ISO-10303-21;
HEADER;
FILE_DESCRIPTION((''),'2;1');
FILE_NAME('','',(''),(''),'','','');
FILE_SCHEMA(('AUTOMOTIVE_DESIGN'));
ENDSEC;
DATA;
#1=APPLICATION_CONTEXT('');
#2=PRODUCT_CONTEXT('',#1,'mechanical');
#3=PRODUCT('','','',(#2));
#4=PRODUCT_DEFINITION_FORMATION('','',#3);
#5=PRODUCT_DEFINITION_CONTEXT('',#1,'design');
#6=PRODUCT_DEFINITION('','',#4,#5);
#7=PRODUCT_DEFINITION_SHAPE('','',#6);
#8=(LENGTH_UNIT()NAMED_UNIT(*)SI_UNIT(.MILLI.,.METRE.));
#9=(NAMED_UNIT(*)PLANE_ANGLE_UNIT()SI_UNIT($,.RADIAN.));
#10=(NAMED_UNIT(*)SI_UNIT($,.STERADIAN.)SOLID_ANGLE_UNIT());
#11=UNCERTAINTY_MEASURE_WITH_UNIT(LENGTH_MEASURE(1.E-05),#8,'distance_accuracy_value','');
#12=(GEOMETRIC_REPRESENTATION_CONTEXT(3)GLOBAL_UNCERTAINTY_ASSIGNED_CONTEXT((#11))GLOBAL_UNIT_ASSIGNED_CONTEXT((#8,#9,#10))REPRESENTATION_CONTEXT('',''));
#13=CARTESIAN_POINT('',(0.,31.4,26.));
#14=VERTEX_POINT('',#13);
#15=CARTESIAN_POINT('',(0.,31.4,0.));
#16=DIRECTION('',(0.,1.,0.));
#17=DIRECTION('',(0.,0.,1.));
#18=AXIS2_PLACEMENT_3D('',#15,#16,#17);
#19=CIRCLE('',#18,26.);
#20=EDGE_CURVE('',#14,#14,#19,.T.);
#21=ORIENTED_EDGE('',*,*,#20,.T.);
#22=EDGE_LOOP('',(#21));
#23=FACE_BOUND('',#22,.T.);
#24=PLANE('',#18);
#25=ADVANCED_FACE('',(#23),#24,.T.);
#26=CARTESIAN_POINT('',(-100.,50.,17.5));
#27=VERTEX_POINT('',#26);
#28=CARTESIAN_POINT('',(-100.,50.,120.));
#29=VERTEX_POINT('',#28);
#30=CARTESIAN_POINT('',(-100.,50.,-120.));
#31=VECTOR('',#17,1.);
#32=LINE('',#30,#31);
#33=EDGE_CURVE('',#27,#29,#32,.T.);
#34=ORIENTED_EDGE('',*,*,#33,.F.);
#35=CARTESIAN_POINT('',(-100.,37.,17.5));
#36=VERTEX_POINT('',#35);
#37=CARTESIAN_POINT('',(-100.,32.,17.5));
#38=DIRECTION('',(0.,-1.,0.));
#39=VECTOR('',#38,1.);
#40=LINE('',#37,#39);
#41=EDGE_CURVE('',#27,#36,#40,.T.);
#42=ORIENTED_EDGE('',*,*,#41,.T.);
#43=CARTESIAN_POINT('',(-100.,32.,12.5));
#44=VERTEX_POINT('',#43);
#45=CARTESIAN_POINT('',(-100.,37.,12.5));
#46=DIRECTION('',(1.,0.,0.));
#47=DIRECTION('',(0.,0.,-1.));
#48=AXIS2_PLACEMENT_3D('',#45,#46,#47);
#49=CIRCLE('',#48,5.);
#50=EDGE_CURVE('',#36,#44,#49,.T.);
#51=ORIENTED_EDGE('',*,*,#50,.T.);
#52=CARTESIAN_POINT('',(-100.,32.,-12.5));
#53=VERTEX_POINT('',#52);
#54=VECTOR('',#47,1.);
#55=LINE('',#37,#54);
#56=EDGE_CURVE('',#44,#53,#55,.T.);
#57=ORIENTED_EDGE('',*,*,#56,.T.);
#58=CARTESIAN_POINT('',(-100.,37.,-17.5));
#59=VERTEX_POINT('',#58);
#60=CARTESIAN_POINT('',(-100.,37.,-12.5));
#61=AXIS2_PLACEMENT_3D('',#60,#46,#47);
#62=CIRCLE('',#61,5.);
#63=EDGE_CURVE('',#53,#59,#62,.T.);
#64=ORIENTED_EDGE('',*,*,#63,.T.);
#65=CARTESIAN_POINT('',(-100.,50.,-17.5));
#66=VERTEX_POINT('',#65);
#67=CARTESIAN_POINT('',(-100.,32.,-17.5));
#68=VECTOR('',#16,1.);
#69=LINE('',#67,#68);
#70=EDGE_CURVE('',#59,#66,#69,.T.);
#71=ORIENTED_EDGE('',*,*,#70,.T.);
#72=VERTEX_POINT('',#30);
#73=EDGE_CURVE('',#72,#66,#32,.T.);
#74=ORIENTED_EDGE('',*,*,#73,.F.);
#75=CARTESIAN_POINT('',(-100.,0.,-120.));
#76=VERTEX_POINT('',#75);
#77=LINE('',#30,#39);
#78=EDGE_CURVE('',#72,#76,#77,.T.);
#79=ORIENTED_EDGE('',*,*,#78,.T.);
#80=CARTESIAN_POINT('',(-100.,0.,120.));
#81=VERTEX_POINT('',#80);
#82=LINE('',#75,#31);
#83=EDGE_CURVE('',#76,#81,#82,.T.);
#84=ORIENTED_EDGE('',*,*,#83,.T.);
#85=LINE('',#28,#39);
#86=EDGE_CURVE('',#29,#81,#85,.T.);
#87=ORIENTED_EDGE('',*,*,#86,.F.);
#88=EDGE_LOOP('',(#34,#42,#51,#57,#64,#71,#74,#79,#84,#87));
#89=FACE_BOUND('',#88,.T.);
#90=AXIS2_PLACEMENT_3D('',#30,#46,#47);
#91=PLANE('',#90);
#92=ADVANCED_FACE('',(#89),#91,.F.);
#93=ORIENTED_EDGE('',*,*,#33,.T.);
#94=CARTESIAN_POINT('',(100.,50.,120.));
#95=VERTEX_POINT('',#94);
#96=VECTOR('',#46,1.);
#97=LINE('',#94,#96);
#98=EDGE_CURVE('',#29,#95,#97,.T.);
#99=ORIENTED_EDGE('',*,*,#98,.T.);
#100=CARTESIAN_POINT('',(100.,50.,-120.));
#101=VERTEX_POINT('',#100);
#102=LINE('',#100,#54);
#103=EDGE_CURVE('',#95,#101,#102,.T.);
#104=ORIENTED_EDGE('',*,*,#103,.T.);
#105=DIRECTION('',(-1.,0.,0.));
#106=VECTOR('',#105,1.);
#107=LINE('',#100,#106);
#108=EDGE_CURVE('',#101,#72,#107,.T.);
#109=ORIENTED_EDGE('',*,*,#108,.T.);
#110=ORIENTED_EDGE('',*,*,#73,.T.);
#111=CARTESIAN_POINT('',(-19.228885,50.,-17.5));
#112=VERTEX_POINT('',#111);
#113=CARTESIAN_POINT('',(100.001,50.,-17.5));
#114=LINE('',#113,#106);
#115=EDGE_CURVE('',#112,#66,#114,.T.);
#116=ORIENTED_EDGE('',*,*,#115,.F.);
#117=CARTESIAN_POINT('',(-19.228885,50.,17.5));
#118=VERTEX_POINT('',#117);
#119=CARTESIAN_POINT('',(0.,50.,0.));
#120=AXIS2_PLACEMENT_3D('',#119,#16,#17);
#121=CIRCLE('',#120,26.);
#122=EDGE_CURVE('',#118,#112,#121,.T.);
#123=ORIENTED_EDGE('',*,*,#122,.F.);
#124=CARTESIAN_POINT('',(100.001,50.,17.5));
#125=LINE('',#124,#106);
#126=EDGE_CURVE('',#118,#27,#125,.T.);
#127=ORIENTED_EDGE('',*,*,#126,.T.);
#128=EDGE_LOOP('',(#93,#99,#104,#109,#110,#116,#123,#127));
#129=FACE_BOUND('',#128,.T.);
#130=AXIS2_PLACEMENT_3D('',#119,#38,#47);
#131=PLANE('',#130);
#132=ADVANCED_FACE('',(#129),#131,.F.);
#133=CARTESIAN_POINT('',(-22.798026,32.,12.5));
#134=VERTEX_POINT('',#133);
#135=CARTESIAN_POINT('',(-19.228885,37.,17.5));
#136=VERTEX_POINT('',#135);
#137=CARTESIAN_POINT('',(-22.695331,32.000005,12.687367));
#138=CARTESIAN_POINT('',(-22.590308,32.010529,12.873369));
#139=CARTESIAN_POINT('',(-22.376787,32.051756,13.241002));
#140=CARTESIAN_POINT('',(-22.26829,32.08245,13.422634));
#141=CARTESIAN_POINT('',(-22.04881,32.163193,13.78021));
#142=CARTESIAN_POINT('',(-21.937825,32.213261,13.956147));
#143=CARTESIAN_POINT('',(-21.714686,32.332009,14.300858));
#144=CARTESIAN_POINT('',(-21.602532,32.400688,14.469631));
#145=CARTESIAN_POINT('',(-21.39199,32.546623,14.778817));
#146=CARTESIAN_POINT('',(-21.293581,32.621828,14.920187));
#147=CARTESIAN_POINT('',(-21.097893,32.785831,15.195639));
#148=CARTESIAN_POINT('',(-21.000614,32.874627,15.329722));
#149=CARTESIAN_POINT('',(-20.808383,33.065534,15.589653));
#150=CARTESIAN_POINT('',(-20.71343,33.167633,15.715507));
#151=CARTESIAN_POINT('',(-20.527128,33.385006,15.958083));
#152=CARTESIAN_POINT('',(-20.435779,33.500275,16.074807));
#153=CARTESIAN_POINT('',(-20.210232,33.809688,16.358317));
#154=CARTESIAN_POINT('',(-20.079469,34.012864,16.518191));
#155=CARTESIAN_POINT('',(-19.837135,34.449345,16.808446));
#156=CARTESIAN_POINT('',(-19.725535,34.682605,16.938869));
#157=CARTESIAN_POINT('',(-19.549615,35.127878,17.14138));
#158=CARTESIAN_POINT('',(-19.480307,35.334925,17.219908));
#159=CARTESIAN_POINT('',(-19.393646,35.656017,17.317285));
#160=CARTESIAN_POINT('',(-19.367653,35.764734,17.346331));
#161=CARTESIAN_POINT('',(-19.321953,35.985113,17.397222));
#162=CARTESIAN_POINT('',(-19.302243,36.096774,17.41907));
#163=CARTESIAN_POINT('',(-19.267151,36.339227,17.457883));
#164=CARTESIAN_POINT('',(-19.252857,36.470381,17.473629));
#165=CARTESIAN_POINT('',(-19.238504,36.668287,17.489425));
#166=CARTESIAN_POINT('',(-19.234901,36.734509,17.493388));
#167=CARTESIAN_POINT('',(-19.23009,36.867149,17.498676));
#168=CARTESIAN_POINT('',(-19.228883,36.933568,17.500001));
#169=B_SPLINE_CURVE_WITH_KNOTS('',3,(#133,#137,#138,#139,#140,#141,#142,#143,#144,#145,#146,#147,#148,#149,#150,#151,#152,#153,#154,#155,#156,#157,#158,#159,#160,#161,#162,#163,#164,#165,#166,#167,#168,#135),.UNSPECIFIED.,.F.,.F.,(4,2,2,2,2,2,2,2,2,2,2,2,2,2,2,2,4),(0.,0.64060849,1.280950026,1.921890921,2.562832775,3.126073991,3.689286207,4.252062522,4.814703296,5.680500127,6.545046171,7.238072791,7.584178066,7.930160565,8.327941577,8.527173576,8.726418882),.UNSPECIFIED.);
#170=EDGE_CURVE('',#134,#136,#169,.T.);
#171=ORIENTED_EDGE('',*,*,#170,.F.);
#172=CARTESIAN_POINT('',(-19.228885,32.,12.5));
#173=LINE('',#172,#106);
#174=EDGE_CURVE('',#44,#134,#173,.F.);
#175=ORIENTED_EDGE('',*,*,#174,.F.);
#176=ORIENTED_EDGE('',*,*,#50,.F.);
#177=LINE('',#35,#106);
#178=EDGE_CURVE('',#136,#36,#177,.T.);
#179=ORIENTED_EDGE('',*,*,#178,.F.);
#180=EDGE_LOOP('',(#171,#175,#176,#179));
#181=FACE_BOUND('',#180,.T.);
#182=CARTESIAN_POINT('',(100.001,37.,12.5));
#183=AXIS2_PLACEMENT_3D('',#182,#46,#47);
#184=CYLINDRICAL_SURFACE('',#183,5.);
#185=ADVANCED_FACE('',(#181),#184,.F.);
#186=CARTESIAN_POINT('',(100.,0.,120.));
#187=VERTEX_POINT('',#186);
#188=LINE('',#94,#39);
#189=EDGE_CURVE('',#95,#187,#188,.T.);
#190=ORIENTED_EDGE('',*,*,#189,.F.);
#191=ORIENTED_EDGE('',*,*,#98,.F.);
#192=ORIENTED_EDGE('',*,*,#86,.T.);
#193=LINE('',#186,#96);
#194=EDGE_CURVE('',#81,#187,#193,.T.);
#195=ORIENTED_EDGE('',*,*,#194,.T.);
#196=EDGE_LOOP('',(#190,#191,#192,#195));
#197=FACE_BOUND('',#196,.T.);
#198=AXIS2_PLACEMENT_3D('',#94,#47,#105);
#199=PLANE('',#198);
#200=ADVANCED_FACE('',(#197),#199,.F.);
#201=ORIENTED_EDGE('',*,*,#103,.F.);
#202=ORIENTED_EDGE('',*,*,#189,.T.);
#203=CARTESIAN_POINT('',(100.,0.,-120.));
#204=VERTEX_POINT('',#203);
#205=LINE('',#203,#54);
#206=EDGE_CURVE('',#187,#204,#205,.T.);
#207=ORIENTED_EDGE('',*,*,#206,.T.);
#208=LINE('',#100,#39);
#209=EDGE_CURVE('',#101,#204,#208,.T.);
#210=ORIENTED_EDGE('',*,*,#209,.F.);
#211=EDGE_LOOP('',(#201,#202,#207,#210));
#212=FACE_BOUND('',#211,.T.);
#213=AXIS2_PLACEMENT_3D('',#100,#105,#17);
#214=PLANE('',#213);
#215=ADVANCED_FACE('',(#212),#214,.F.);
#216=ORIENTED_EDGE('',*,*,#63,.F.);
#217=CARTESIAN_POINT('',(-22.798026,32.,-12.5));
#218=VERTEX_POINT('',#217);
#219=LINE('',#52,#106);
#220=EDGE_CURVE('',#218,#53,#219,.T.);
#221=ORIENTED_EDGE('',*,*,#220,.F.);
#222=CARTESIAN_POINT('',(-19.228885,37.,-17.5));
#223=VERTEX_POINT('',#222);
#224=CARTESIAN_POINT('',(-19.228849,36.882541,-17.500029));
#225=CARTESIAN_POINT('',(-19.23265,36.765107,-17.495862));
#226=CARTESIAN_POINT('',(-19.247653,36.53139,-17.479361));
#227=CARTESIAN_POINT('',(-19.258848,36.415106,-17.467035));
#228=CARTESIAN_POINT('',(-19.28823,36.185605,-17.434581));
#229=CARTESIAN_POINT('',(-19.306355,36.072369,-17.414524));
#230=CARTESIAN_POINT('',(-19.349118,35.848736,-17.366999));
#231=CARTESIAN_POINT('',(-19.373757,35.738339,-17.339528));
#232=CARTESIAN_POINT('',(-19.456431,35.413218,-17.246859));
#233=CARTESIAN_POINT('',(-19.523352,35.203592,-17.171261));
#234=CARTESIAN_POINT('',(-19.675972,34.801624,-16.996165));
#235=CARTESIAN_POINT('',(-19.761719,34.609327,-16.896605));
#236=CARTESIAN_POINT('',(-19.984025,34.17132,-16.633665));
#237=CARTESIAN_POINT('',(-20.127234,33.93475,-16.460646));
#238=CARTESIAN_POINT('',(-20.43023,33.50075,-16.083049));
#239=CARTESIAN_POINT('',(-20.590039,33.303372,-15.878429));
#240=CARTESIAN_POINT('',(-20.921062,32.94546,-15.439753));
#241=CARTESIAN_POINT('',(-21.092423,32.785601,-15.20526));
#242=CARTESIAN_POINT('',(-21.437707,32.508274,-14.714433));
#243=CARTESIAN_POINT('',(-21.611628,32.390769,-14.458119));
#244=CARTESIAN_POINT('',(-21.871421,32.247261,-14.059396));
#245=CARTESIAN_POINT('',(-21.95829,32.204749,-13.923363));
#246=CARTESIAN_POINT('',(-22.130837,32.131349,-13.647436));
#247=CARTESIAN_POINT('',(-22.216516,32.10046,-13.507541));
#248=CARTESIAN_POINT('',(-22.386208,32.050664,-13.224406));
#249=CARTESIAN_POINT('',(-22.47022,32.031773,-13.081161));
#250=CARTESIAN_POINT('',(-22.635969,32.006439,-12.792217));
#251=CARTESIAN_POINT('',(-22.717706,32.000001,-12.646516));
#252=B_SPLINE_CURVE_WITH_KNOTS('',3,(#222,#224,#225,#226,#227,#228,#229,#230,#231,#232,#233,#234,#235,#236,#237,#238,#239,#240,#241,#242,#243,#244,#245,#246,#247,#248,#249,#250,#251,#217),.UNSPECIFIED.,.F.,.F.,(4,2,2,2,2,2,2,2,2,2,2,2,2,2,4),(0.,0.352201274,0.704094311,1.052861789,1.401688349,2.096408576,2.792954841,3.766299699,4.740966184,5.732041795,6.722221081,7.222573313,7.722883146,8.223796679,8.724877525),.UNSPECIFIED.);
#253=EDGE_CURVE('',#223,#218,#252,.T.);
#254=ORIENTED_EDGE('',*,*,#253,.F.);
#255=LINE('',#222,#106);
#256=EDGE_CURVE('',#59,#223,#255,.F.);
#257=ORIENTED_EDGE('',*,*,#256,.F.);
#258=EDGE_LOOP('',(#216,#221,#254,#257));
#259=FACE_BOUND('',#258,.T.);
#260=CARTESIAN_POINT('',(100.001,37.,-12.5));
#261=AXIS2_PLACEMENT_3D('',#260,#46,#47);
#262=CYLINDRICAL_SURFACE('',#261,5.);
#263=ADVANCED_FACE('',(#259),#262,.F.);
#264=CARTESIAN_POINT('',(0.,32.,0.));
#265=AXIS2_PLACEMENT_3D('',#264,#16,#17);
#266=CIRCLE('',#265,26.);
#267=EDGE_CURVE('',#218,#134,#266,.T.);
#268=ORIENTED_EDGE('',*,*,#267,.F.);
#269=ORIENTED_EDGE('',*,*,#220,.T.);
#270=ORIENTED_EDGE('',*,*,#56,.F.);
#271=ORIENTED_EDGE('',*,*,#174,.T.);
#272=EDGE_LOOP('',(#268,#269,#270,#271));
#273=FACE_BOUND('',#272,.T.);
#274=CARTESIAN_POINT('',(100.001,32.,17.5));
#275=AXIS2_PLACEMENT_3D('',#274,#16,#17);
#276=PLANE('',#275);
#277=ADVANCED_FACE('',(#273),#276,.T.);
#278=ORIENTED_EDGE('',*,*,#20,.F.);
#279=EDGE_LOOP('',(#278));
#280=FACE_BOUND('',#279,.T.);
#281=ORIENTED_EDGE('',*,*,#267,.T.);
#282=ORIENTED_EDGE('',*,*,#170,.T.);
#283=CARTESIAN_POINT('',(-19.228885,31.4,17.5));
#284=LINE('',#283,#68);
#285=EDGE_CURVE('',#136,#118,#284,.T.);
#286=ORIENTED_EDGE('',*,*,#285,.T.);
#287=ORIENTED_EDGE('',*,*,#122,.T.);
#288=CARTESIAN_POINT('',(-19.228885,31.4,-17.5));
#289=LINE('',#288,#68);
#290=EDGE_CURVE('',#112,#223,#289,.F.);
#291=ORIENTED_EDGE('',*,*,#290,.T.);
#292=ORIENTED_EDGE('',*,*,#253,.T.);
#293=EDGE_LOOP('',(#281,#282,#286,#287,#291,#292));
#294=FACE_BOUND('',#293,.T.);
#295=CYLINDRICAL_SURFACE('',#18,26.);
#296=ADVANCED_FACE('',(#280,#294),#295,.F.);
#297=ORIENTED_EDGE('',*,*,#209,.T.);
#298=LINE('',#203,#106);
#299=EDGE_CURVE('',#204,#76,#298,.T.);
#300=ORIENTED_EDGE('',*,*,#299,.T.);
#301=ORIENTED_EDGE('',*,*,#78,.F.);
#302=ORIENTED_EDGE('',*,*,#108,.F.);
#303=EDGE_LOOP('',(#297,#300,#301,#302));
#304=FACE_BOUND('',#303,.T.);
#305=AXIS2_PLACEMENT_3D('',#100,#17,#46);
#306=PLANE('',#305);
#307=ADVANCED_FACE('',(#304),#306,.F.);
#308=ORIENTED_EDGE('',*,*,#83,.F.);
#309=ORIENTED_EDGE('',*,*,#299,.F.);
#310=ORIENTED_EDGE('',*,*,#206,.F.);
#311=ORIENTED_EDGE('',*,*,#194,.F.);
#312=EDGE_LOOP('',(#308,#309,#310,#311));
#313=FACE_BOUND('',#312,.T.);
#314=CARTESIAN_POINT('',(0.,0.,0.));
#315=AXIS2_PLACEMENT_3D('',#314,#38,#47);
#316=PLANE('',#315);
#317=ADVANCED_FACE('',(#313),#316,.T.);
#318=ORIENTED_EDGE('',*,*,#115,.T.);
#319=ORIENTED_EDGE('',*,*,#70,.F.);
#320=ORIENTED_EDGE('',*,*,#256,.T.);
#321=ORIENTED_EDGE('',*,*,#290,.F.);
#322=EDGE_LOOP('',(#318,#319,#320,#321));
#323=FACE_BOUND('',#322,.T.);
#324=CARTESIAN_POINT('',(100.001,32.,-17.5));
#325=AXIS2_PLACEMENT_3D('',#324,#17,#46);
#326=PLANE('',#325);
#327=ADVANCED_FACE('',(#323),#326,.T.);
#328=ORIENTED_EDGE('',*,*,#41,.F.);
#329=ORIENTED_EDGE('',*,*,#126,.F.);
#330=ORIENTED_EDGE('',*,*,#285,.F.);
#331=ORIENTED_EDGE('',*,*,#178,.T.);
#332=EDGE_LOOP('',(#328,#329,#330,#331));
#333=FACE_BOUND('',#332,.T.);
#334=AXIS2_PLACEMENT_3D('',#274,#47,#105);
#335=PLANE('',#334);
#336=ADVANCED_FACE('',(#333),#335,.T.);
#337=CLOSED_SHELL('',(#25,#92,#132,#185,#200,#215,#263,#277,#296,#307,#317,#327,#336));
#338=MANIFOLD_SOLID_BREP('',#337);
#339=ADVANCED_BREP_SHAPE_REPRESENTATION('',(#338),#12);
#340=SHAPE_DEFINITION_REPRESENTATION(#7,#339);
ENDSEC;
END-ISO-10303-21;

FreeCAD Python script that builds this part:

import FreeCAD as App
import Part
import Sketcher
from FreeCAD import Vector
Q = App.Units.Quantity


def edges_at(feature, points):
    """Names of the edges that pass closest to the given points."""
    edges = feature.Shape.Edges
    near = lambda p: min(range(len(edges)), key=lambda i: edges[i].distToShape(Part.Vertex(*p))[0])
    return sorted({f"Edge{near(p) + 1}" for p in points})

doc = App.newDocument("Part")
body = doc.addObject("PartDesign::Body", "Body")

sketch1 = doc.addObject("Sketcher::SketchObject", "Sketch")
body.addObject(sketch1)
sketch1.AttachmentSupport = (doc.XZ_Plane, [""])
sketch1.MapMode = "FlatFace"
sketch1.addGeometry([
    Part.LineSegment(Vector(-100, -120, 0), Vector(-100, 120, 0)),
    Part.LineSegment(Vector(-100, 120, 0), Vector(100, 120, 0)),
    Part.LineSegment(Vector(100, 120, 0), Vector(100, -120, 0)),
    Part.LineSegment(Vector(100, -120, 0), Vector(-100, -120, 0)),
], False)
sketch1.addConstraint([
    Sketcher.Constraint("Coincident", 0, 2, 1, 1),
    Sketcher.Constraint("Coincident", 1, 2, 2, 1),
    Sketcher.Constraint("Coincident", 2, 2, 3, 1),
    Sketcher.Constraint("Coincident", 3, 2, 0, 1),
    Sketcher.Constraint("Vertical", 0),
    Sketcher.Constraint("Horizontal", 1),
    Sketcher.Constraint("Vertical", 2),
    Sketcher.Constraint("Horizontal", 3),
    Sketcher.Constraint("Symmetric", 0, 2, 2, 2, -1, 1),
    Sketcher.Constraint("DistanceX", 1, 1, 1, 2, Q("200 mm")),
    Sketcher.Constraint("DistanceY", 0, 1, 0, 2, Q("240 mm")),
])
pad1 = doc.addObject("PartDesign::Pad", "Pad")
body.addObject(pad1)
pad1.Profile = sketch1
pad1.Length = 50
pad1.Reversed = True

sketch2 = doc.addObject("Sketcher::SketchObject", "Sketch001")
body.addObject(sketch2)
sketch2.AttachmentSupport = (doc.XZ_Plane, [""])
sketch2.MapMode = "FlatFace"
sketch2.AttachmentOffset = App.Placement(Vector(0, 0, -50), App.Rotation())
sketch2.addGeometry(Part.Circle(Vector(0, 0, 0), Vector(0, 0, 1), 26), False)
sketch2.addConstraint([
    Sketcher.Constraint("Coincident", 0, 3, -1, 1),
    Sketcher.Constraint("Diameter", 0, Q("52 mm")),
])
pocket1 = doc.addObject("PartDesign::Pocket", "Pocket")
body.addObject(pocket1)
pocket1.Profile = sketch2
pocket1.Length = 18.6
pocket1.Reversed = True

sketch3 = doc.addObject("Sketcher::SketchObject", "Sketch002")
body.addObject(sketch3)
sketch3.AttachmentSupport = (doc.YZ_Plane, [""])
sketch3.MapMode = "FlatFace"
sketch3.AttachmentOffset = App.Placement(Vector(0, 0, -100), App.Rotation())
sketch3.addGeometry([
    Part.LineSegment(Vector(50, 18, 0), Vector(32, 18, 0)),
    Part.LineSegment(Vector(32, 18, 0), Vector(32, -18, 0)),
    Part.LineSegment(Vector(32, -18, 0), Vector(50, -18, 0)),
    Part.LineSegment(Vector(50, -18, 0), Vector(50, 18, 0)),
], False)
sketch3.addConstraint([
    Sketcher.Constraint("Coincident", 0, 2, 1, 1),
    Sketcher.Constraint("Coincident", 1, 2, 2, 1),
    Sketcher.Constraint("Coincident", 2, 2, 3, 1),
    Sketcher.Constraint("Coincident", 3, 2, 0, 1),
    Sketcher.Constraint("Horizontal", 0),
    Sketcher.Constraint("Vertical", 1),
    Sketcher.Constraint("Horizontal", 2),
    Sketcher.Constraint("Vertical", 3),
    Sketcher.Constraint("DistanceX", 0, 2, 0, 1, Q("18 mm")),
    Sketcher.Constraint("DistanceY", 1, 2, 1, 1, Q("35 mm")),
    Sketcher.Constraint("DistanceX", -1, 1, 0, 2, Q("32 mm")),
    Sketcher.Constraint("DistanceY", -1, 1, 0, 2, Q("17.5 mm")),
])
pocket2 = doc.addObject("PartDesign::Pocket", "Pocket001")
body.addObject(pocket2)
pocket2.Profile = sketch3
pocket2.Type = "UpToFirst"
pocket2.Reversed = True
doc.recompute()

fillet = doc.addObject("PartDesign::Fillet", "Fillet")
body.addObject(fillet)
fillet.Base = (pocket2, edges_at(pocket2, [(-59.614, 32, -17.5), (-59.614, 32, 17.5)]))
fillet.Radius = 5

doc.recompute()
